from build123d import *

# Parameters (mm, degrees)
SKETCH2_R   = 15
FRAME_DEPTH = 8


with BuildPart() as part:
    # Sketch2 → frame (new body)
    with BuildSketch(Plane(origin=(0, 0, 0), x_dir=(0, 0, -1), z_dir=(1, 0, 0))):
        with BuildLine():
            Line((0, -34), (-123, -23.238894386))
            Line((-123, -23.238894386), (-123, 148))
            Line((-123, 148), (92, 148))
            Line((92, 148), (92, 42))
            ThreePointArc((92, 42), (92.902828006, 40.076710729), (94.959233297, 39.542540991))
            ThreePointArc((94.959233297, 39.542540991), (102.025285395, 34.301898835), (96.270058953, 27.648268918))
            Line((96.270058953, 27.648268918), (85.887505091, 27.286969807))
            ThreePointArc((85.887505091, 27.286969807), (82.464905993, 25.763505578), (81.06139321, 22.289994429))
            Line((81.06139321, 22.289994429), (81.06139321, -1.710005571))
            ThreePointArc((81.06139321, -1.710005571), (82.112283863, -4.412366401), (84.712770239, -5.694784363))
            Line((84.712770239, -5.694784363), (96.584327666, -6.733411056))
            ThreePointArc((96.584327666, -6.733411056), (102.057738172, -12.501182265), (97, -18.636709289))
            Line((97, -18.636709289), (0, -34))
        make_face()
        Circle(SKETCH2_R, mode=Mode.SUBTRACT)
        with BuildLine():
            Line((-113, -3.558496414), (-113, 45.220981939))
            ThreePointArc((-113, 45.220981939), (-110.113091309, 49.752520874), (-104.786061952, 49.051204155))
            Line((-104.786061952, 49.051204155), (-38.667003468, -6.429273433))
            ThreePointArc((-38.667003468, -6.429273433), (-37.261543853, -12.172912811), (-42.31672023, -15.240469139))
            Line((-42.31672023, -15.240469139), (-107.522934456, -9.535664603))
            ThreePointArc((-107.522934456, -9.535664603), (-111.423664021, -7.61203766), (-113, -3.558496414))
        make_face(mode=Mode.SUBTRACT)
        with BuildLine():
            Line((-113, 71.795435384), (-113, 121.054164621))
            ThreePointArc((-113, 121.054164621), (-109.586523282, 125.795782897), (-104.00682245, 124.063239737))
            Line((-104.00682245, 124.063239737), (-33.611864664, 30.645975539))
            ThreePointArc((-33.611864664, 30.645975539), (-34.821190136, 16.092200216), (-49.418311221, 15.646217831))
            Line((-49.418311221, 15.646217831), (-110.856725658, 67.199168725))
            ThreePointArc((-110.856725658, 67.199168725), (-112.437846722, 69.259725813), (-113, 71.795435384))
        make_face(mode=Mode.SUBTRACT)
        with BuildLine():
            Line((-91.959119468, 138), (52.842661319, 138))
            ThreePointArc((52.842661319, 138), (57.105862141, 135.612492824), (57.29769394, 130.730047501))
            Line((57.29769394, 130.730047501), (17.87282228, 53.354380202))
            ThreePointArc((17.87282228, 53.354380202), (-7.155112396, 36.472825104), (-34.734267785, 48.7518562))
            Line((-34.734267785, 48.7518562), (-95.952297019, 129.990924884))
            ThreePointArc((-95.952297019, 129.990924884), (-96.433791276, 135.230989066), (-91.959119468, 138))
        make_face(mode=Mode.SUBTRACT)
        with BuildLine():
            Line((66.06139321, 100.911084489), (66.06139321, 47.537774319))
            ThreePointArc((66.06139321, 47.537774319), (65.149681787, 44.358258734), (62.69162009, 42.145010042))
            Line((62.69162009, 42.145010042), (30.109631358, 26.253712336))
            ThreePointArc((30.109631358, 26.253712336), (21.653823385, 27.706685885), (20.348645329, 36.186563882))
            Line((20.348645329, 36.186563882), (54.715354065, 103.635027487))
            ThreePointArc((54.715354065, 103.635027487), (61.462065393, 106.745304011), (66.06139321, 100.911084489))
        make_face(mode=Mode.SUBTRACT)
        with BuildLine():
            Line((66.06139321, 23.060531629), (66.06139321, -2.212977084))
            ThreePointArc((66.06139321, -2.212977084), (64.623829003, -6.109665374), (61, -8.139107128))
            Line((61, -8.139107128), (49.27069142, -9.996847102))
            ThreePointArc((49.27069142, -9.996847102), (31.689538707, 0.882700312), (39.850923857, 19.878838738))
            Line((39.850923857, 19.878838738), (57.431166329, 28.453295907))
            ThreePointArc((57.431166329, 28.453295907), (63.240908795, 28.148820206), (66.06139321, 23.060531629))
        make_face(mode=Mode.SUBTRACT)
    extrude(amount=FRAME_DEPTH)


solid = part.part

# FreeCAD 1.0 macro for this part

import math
import FreeCAD as App
import Part
import Sketcher
Q = App.Units.Quantity

doc = App.newDocument("Part")
body = doc.addObject("PartDesign::Body", "Body")

# Sketch on YZ plane
sketch1 = body.newObject("Sketcher::SketchObject", "Sketch")
sketch1.AttachmentSupport = (doc.getObject("YZ_Plane"), [""])
sketch1.MapMode = "FlatFace"
sketch1.addGeometry(Part.LineSegment(App.Vector(-23.238894, 123, 0), App.Vector(-34, 0, 0)), False)
sketch1.addGeometry(Part.LineSegment(App.Vector(-34, 0, 0), App.Vector(-18.636709, -97, 0)), False)
sketch1.addGeometry(Part.ArcOfCircle(Part.Circle(App.Vector(-12.710579, -96.061393, 0), App.Vector(0, 0, 1), 6), math.radians(-171), math.radians(-5)), False)
sketch1.addGeometry(Part.LineSegment(App.Vector(-6.733411, -96.584328, 0), App.Vector(-5.694784, -84.71277, 0)), False)
sketch1.addGeometry(Part.ArcOfCircle(Part.Circle(App.Vector(-1.710006, -85.061393, 0), App.Vector(0, 0, 1), 4), math.radians(90), math.radians(175)), False)
sketch1.addGeometry(Part.LineSegment(App.Vector(-1.710006, -81.061393, 0), App.Vector(22.289994, -81.061393, 0)), False)
sketch1.addGeometry(Part.ArcOfCircle(Part.Circle(App.Vector(22.289994, -86.061393, 0), App.Vector(0, 0, 1), 5), math.radians(1.993013), math.radians(90)), False)
sketch1.addGeometry(Part.LineSegment(App.Vector(27.28697, -85.887505, 0), App.Vector(27.648269, -96.270059, 0)), False)
sketch1.addGeometry(Part.ArcOfCircle(Part.Circle(App.Vector(33.644639, -96.061393, 0), App.Vector(0, 0, 1), 6), math.radians(-178.006987), math.radians(10.58496)), False)
sketch1.addGeometry(Part.ArcOfCircle(Part.Circle(App.Vector(42, -94.5, 0), App.Vector(0, 0, 1), 2.5), math.radians(90), math.radians(190.58496)), False)
sketch1.addGeometry(Part.LineSegment(App.Vector(42, -92, 0), App.Vector(148, -92, 0)), False)
sketch1.addGeometry(Part.LineSegment(App.Vector(148, -92, 0), App.Vector(148, 123, 0)), False)
sketch1.addGeometry(Part.LineSegment(App.Vector(148, 123, 0), App.Vector(-23.238894, 123, 0)), False)
sketch1.addGeometry(Part.LineSegment(App.Vector(23.060532, -66.061393, 0), App.Vector(-2.212977, -66.061393, 0)), False)
sketch1.addGeometry(Part.ArcOfCircle(Part.Circle(App.Vector(-2.212977, -60.061393, 0), App.Vector(0, 0, 1), 6), math.radians(-171), math.radians(-90)), False)
sketch1.addGeometry(Part.LineSegment(App.Vector(-8.139107, -61, 0), App.Vector(-9.996847, -49.270691, 0)), False)
sketch1.addGeometry(Part.ArcOfCircle(Part.Circle(App.Vector(5.644893, -46.793283, 0), App.Vector(0, 0, 1), 15.836716), math.radians(26), math.radians(189)), False)
sketch1.addGeometry(Part.LineSegment(App.Vector(19.878839, -39.850924, 0), App.Vector(28.453296, -57.431166, 0)), False)
sketch1.addGeometry(Part.ArcOfCircle(Part.Circle(App.Vector(23.060532, -60.061393, 0), App.Vector(0, 0, 1), 6), math.radians(-90), math.radians(26)), False)
sketch1.addGeometry(Part.Circle(App.Vector(0, 0, 0), App.Vector(0, 0, 1), 15), False)
sketch1.addGeometry(Part.LineSegment(App.Vector(-3.558496, 113, 0), App.Vector(45.220982, 113, 0)), False)
sketch1.addGeometry(Part.ArcOfCircle(Part.Circle(App.Vector(45.220982, 108, 0), App.Vector(0, 0, 1), 5), math.radians(-40), math.radians(90)), False)
sketch1.addGeometry(Part.LineSegment(App.Vector(49.051204, 104.786062, 0), App.Vector(-6.429273, 38.667003, 0)), False)
sketch1.addGeometry(Part.ArcOfCircle(Part.Circle(App.Vector(-10.259496, 41.880942, 0), App.Vector(0, 0, 1), 5), math.radians(175), math.radians(320)), False)
sketch1.addGeometry(Part.LineSegment(App.Vector(-15.240469, 42.31672, 0), App.Vector(-9.535665, 107.522934, 0)), False)
sketch1.addGeometry(Part.ArcOfCircle(Part.Circle(App.Vector(-3.558496, 107, 0), App.Vector(0, 0, 1), 6), math.radians(90), math.radians(175)), False)
sketch1.addGeometry(Part.LineSegment(App.Vector(100.911084, -66.061393, 0), App.Vector(47.537774, -66.061393, 0)), False)
sketch1.addGeometry(Part.ArcOfCircle(Part.Circle(App.Vector(47.537774, -60.061393, 0), App.Vector(0, 0, 1), 6), math.radians(-154), math.radians(-90)), False)
sketch1.addGeometry(Part.LineSegment(App.Vector(42.14501, -62.69162, 0), App.Vector(26.253712, -30.109631, 0)), False)
sketch1.addGeometry(Part.ArcOfCircle(Part.Circle(App.Vector(32.853128, -26.890881, 0), App.Vector(0, 0, 1), 7.342523), math.radians(63), math.radians(206)), False)
sketch1.addGeometry(Part.LineSegment(App.Vector(36.186564, -20.348645, 0), App.Vector(103.635027, -54.715354, 0)), False)
sketch1.addGeometry(Part.ArcOfCircle(Part.Circle(App.Vector(100.911084, -60.061393, 0), App.Vector(0, 0, 1), 6), math.radians(-90), math.radians(63)), False)
sketch1.addGeometry(Part.LineSegment(App.Vector(138, 91.959119, 0), App.Vector(138, -52.842661, 0)), False)
sketch1.addGeometry(Part.ArcOfCircle(Part.Circle(App.Vector(133, -52.842661, 0), App.Vector(0, 0, 1), 5), math.radians(-117), math.radians(0)), False)
sketch1.addGeometry(Part.LineSegment(App.Vector(130.730048, -57.297694, 0), App.Vector(53.35438, -17.872822, 0)), False)
sketch1.addGeometry(Part.ArcOfCircle(Part.Circle(App.Vector(67.489397, 9.868711, 0), App.Vector(0, 0, 1), 31.135051), math.radians(127), math.radians(243)), False)
sketch1.addGeometry(Part.LineSegment(App.Vector(48.751856, 34.734268, 0), App.Vector(129.990925, 95.952297, 0)), False)
sketch1.addGeometry(Part.ArcOfCircle(Part.Circle(App.Vector(133, 91.959119, 0), App.Vector(0, 0, 1), 5), math.radians(0), math.radians(127)), False)
sketch1.addGeometry(Part.LineSegment(App.Vector(71.795435, 113, 0), App.Vector(121.054165, 113, 0)), False)
sketch1.addGeometry(Part.ArcOfCircle(Part.Circle(App.Vector(121.054165, 108, 0), App.Vector(0, 0, 1), 5), math.radians(-53), math.radians(90)), False)
sketch1.addGeometry(Part.LineSegment(App.Vector(124.06324, 104.006822, 0), App.Vector(30.645976, 33.611865, 0)), False)
sketch1.addGeometry(Part.ArcOfCircle(Part.Circle(App.Vector(24.046555, 42.369591, 0), App.Vector(0, 0, 1), 10.965862), math.radians(140), math.radians(307)), False)
sketch1.addGeometry(Part.LineSegment(App.Vector(15.646218, 49.418311, 0), App.Vector(67.199169, 110.856726, 0)), False)
sketch1.addGeometry(Part.ArcOfCircle(Part.Circle(App.Vector(71.795435, 107, 0), App.Vector(0, 0, 1), 6), math.radians(90), math.radians(140)), False)
sketch1.addConstraint(Sketcher.Constraint("Coincident", 0, 2, 1, 1))
sketch1.addConstraint(Sketcher.Constraint("Tangent", 1, 2, 2, 1))
sketch1.addConstraint(Sketcher.Constraint("Tangent", 2, 2, 3, 1))
sketch1.addConstraint(Sketcher.Constraint("Tangent", 3, 2, 4, 2))
sketch1.addConstraint(Sketcher.Constraint("Tangent", 4, 1, 5, 1))
sketch1.addConstraint(Sketcher.Constraint("Tangent", 5, 2, 6, 2))
sketch1.addConstraint(Sketcher.Constraint("Tangent", 6, 1, 7, 1))
sketch1.addConstraint(Sketcher.Constraint("Tangent", 7, 2, 8, 1))
sketch1.addConstraint(Sketcher.Constraint("Tangent", 8, 2, 9, 2))
sketch1.addConstraint(Sketcher.Constraint("Tangent", 9, 1, 10, 1))
sketch1.addConstraint(Sketcher.Constraint("Coincident", 10, 2, 11, 1))
sketch1.addConstraint(Sketcher.Constraint("Coincident", 11, 2, 12, 1))
sketch1.addConstraint(Sketcher.Constraint("Coincident", 12, 2, 0, 1))
sketch1.addConstraint(Sketcher.Constraint("Tangent", 13, 2, 14, 2))
sketch1.addConstraint(Sketcher.Constraint("Tangent", 14, 1, 15, 1))
sketch1.addConstraint(Sketcher.Constraint("Tangent", 15, 2, 16, 2))
sketch1.addConstraint(Sketcher.Constraint("Tangent", 16, 1, 17, 1))
sketch1.addConstraint(Sketcher.Constraint("Tangent", 17, 2, 18, 2))
sketch1.addConstraint(Sketcher.Constraint("Tangent", 18, 1, 13, 1))
sketch1.addConstraint(Sketcher.Constraint("Tangent", 20, 2, 21, 2))
sketch1.addConstraint(Sketcher.Constraint("Tangent", 21, 1, 22, 1))
sketch1.addConstraint(Sketcher.Constraint("Tangent", 22, 2, 23, 2))
sketch1.addConstraint(Sketcher.Constraint("Tangent", 23, 1, 24, 1))
sketch1.addConstraint(Sketcher.Constraint("Tangent", 24, 2, 25, 2))
sketch1.addConstraint(Sketcher.Constraint("Tangent", 25, 1, 20, 1))
sketch1.addConstraint(Sketcher.Constraint("Tangent", 26, 2, 27, 2))
sketch1.addConstraint(Sketcher.Constraint("Tangent", 27, 1, 28, 1))
sketch1.addConstraint(Sketcher.Constraint("Tangent", 28, 2, 29, 2))
sketch1.addConstraint(Sketcher.Constraint("Tangent", 29, 1, 30, 1))
sketch1.addConstraint(Sketcher.Constraint("Tangent", 30, 2, 31, 2))
sketch1.addConstraint(Sketcher.Constraint("Tangent", 31, 1, 26, 1))
sketch1.addConstraint(Sketcher.Constraint("Tangent", 32, 2, 33, 2))
sketch1.addConstraint(Sketcher.Constraint("Tangent", 33, 1, 34, 1))
sketch1.addConstraint(Sketcher.Constraint("Tangent", 34, 2, 35, 2))
sketch1.addConstraint(Sketcher.Constraint("Tangent", 35, 1, 36, 1))
sketch1.addConstraint(Sketcher.Constraint("Tangent", 36, 2, 37, 2))
sketch1.addConstraint(Sketcher.Constraint("Tangent", 37, 1, 32, 1))
sketch1.addConstraint(Sketcher.Constraint("Tangent", 38, 2, 39, 2))
sketch1.addConstraint(Sketcher.Constraint("Tangent", 39, 1, 40, 1))
sketch1.addConstraint(Sketcher.Constraint("Tangent", 40, 2, 41, 2))
sketch1.addConstraint(Sketcher.Constraint("Tangent", 41, 1, 42, 1))
sketch1.addConstraint(Sketcher.Constraint("Tangent", 42, 2, 43, 2))
sketch1.addConstraint(Sketcher.Constraint("Tangent", 43, 1, 38, 1))
sketch1.addConstraint(Sketcher.Constraint("Horizontal", 5))
sketch1.addConstraint(Sketcher.Constraint("Horizontal", 10))
sketch1.addConstraint(Sketcher.Constraint("Vertical", 11))
sketch1.addConstraint(Sketcher.Constraint("Horizontal", 12))
sketch1.addConstraint(Sketcher.Constraint("Horizontal", 13))
sketch1.addConstraint(Sketcher.Constraint("Horizontal", 20))
sketch1.addConstraint(Sketcher.Constraint("Horizontal", 26))
sketch1.addConstraint(Sketcher.Constraint("Vertical", 32))
sketch1.addConstraint(Sketcher.Constraint("Horizontal", 38))
sketch1.addConstraint(Sketcher.Constraint("Coincident", 19, 3, -1, 1))
sketch1.addConstraint(Sketcher.Constraint("Equal", 2, 8))
sketch1.addConstraint(Sketcher.Constraint("Equal", 8, 14))
sketch1.addConstraint(Sketcher.Constraint("Equal", 14, 18))
sketch1.addConstraint(Sketcher.Constraint("Equal", 6, 21))
sketch1.addConstraint(Sketcher.Constraint("Equal", 21, 23))
sketch1.addConstraint(Sketcher.Constraint("Equal", 18, 25))
sketch1.addConstraint(Sketcher.Constraint("Equal", 25, 27))
sketch1.addConstraint(Sketcher.Constraint("Equal", 27, 31))
sketch1.addConstraint(Sketcher.Constraint("Equal", 23, 33))
sketch1.addConstraint(Sketcher.Constraint("Equal", 33, 37))
sketch1.addConstraint(Sketcher.Constraint("Equal", 37, 39))
sketch1.addConstraint(Sketcher.Constraint("Equal", 31, 43))
sketch1.addConstraint(Sketcher.Constraint("PointOnObject", 0, 2, -1))
sketch1.addConstraint(Sketcher.Constraint("Parallel", 0, 3))
sketch1.addConstraint(Sketcher.Constraint("Parallel", 1, 15))
sketch1.addConstraint(Sketcher.Constraint("Parallel", 3, 24))
sketch1.addConstraint(Sketcher.Constraint("Parallel", 17, 28))
sketch1.addConstraint(Sketcher.Constraint("Parallel", 30, 34))
sketch1.addConstraint(Sketcher.Constraint("Parallel", 36, 40))
sketch1.addConstraint(Sketcher.Constraint("Parallel", 22, 42))
sketch1.addConstraint(Sketcher.Constraint("Horizontal", 2, 3, 8, 3))
sketch1.addConstraint(Sketcher.Constraint("Horizontal", 18, 3, 27, 3))
sketch1.addConstraint(Sketcher.Constraint("Horizontal", 21, 3, 39, 3))
sketch1.addConstraint(Sketcher.Constraint("Diameter", 19, 30.0))
sketch1.addConstraint(Sketcher.Constraint("Radius", 2, 6.0))
sketch1.addConstraint(Sketcher.Constraint("Radius", 4, 4.0))
sketch1.addConstraint(Sketcher.Constraint("Radius", 6, 5.0))
sketch1.addConstraint(Sketcher.Constraint("Radius", 9, 2.5))
sketch1.addConstraint(Sketcher.Constraint("DistanceX", 5, 1, 5, 2, 24.0))
sketch1.addConstraint(Sketcher.Constraint("DistanceX", 10, 1, 10, 2, 106.0))
sketch1.addConstraint(Sketcher.Constraint("DistanceY", 11, 1, 11, 2, 215.0))
sketch1.addConstraint(Sketcher.Constraint("Angle", 0, Q("-95 deg")))
sketch1.addConstraint(Sketcher.Constraint("Angle", 1, Q("-81 deg")))
sketch1.addConstraint(Sketcher.Constraint("Angle", 17, Q("-64 deg")))
sketch1.addConstraint(Sketcher.Constraint("Angle", 22, Q("-130 deg")))
sketch1.addConstraint(Sketcher.Constraint("Angle", 30, Q("-27 deg")))
sketch1.addConstraint(Sketcher.Constraint("Angle", 36, Q("37 deg")))
sketch1.addConstraint(Sketcher.Constraint("DistanceX", -1, 1, 9, 3, 42.0))
sketch1.addConstraint(Sketcher.Constraint("DistanceY", -1, 1, 21, 3, 108.0))
sketch1.addConstraint(Sketcher.Constraint("DistanceX", -1, 1, 33, 3, 133.0))
sketch1.addConstraint(Sketcher.Constraint("DistanceX", 0, 2, -1, 1, 34.0))
sketch1.addConstraint(Sketcher.Constraint("DistanceY", 1, 2, -1, 1, 97.0))
sketch1.addConstraint(Sketcher.Constraint("DistanceY", 9, 1, -1, 1, 92.0))
sketch1.addConstraint(Sketcher.Constraint("DistanceY", 14, 1, -1, 1, 61.0))
sketch1.addConstraint(Sketcher.Constraint("Radius", 35, 31.135051))
sketch1.addConstraint(Sketcher.Constraint("Radius", 41, 10.965862))
sketch1.addConstraint(Sketcher.Constraint("Radius", 16, 15.836716))
sketch1.addConstraint(Sketcher.Constraint("Radius", 29, 7.342523))
sketch1.addConstraint(Sketcher.Constraint("Distance", 22, 86.312301))
sketch1.addConstraint(Sketcher.Constraint("DistanceX", 13, 2, 13, 1, 25.273509))
sketch1.addConstraint(Sketcher.Constraint("DistanceX", 26, 2, 26, 1, 53.37331))
sketch1.addConstraint(Sketcher.Constraint("DistanceX", 38, 1, 38, 2, 49.258729))
sketch1.addConstraint(Sketcher.Constraint("DistanceY", 32, 2, 32, 1, 144.801781))
sketch1.addConstraint(Sketcher.Constraint("Distance", 7, 10.388838))
sketch1.addConstraint(Sketcher.Constraint("DistanceX", -1, 1, 18, 3, 23.060532))
sketch1.addConstraint(Sketcher.Constraint("DistanceX", -1, 1, 21, 3, 45.220982))
sketch1.addConstraint(Sketcher.Constraint("DistanceX", -1, 1, 29, 3, 32.853128))
sketch1.addConstraint(Sketcher.Constraint("DistanceY", 33, 3, -1, 1, 52.842661))
sketch1.addConstraint(Sketcher.Constraint("DistanceX", -1, 1, 39, 1, 124.06324))
pad1 = body.newObject("PartDesign::Pad", "Pad")
pad1.Profile = sketch1
pad1.Length = 8

doc.recompute()
